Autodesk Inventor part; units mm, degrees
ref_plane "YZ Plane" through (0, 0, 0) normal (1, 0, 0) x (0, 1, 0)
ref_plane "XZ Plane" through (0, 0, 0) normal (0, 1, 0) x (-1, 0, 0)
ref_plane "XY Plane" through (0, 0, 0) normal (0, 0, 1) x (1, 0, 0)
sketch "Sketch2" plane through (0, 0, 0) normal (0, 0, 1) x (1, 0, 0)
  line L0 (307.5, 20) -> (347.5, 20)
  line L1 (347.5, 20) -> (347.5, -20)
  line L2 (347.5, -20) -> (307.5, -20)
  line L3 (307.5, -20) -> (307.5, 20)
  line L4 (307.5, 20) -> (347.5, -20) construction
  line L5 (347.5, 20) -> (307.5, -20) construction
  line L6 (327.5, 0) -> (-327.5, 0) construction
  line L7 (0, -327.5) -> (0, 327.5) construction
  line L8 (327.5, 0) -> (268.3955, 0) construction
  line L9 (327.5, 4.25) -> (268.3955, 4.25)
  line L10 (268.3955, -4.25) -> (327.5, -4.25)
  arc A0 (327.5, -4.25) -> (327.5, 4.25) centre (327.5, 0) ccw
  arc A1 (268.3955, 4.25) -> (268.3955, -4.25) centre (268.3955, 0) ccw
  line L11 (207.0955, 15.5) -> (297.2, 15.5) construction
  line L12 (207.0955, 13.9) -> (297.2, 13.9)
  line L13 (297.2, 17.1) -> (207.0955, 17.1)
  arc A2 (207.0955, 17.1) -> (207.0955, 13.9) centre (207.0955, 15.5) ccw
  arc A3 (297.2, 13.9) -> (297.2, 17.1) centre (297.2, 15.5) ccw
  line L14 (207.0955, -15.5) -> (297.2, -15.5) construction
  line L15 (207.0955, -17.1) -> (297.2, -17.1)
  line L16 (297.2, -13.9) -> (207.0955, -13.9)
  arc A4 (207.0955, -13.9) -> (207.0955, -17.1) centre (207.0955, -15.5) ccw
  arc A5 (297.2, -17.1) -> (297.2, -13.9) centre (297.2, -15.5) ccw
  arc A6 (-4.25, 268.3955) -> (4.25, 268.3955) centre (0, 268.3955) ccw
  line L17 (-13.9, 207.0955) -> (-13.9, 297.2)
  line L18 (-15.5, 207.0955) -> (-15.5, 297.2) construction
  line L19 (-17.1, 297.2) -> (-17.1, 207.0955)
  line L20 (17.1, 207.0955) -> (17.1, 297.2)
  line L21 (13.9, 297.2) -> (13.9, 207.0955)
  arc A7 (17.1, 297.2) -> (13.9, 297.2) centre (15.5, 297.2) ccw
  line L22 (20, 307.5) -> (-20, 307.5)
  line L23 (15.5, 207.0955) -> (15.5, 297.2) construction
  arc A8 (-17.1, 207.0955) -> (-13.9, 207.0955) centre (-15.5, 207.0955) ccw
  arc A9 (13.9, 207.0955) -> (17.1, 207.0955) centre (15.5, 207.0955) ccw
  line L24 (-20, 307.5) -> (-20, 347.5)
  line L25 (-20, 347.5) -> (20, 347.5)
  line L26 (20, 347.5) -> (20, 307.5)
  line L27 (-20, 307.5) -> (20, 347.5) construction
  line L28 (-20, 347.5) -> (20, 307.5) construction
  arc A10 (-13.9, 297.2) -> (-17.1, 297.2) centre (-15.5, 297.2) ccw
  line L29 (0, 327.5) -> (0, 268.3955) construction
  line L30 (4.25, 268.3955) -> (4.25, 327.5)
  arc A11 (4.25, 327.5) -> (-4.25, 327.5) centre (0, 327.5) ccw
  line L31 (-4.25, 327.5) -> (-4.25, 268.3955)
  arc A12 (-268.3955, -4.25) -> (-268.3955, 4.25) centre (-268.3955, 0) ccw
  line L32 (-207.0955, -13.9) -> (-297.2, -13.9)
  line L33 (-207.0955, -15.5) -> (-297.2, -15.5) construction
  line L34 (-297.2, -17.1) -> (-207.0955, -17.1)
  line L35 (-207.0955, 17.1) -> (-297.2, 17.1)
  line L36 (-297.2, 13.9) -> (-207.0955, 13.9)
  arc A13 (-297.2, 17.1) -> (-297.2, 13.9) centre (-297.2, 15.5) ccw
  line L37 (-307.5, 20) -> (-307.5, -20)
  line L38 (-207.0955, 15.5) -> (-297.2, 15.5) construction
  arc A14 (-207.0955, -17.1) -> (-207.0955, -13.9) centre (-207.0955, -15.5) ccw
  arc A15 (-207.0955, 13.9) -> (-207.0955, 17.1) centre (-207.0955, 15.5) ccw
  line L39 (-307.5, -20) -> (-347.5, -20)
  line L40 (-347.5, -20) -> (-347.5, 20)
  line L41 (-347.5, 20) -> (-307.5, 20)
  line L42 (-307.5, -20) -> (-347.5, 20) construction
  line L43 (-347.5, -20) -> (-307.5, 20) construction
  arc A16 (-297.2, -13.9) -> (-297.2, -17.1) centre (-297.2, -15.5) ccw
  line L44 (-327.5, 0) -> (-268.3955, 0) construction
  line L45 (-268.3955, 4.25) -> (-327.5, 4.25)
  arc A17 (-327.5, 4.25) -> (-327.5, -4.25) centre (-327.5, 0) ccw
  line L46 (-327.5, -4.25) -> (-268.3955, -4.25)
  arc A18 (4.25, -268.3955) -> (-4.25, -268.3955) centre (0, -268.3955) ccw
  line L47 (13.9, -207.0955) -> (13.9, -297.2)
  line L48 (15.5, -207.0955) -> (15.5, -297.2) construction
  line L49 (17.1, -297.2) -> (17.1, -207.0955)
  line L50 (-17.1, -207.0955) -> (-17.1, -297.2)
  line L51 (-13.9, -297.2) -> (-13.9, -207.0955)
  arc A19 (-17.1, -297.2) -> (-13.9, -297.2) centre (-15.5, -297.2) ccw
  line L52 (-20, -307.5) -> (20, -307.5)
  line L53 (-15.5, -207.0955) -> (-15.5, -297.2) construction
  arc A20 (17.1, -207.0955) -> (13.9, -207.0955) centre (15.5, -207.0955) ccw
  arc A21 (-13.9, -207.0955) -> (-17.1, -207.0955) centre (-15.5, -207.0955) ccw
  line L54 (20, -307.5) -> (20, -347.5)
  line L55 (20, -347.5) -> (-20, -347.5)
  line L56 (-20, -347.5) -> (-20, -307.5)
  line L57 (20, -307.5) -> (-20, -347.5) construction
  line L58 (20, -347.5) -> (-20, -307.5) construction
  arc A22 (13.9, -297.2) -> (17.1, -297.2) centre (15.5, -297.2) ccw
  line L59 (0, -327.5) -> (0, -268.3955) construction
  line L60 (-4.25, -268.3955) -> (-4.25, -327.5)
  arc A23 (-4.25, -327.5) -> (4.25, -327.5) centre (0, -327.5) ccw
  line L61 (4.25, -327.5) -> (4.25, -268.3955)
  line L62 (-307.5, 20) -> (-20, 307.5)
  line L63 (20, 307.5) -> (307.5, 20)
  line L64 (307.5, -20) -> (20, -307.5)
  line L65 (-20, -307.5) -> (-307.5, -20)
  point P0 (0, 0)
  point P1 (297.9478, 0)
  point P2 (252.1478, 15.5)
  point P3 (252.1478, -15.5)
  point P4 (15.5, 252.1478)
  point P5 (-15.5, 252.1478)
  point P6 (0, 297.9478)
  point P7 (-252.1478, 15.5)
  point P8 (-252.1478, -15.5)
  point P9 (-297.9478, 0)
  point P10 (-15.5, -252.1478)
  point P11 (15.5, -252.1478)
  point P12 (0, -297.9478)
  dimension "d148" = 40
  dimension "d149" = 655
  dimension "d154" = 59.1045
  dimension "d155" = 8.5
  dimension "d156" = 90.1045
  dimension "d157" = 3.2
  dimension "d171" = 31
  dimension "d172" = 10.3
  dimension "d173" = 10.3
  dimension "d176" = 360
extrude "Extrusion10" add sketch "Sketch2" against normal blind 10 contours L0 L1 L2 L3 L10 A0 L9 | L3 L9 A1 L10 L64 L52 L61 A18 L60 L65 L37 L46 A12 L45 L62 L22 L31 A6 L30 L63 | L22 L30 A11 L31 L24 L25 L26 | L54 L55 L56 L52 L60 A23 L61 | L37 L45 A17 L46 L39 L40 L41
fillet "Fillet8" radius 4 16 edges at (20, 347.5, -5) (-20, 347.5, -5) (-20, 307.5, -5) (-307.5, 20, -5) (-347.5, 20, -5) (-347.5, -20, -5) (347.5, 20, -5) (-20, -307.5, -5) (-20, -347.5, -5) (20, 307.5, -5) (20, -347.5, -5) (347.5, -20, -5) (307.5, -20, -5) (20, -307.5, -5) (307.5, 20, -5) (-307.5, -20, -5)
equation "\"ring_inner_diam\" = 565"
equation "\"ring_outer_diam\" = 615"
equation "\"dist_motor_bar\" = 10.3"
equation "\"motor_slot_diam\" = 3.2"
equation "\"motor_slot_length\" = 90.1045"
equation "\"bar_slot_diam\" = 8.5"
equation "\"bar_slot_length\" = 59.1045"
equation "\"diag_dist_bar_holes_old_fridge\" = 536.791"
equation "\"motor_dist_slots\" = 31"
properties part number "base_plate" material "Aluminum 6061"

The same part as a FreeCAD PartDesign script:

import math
import FreeCAD as App
import Part
import Sketcher


def edges_at(feature, points):
    """Names of the edges that pass closest to the given points."""
    edges = feature.Shape.Edges
    near = lambda p: min(range(len(edges)), key=lambda i: edges[i].distToShape(Part.Vertex(*p))[0])
    return sorted({f"Edge{near(p) + 1}" for p in points})

doc = App.newDocument("Part")
body = doc.addObject("PartDesign::Body", "Body")

# Sketch on XY plane
sketch1 = doc.addObject("Sketcher::SketchObject", "Sketch")
body.addObject(sketch1)
sketch1.AttachmentSupport = (doc.XY_Plane, [""])
sketch1.MapMode = "FlatFace"
sketch1.addGeometry(Part.LineSegment(App.Vector(347.5, 20, 0), App.Vector(307.5, 20, 0)), False)
sketch1.addGeometry(Part.LineSegment(App.Vector(307.5, 20, 0), App.Vector(20, 307.5, 0)), False)
sketch1.addGeometry(Part.LineSegment(App.Vector(20, 307.5, 0), App.Vector(20, 347.5, 0)), False)
sketch1.addGeometry(Part.LineSegment(App.Vector(20, 347.5, 0), App.Vector(-20, 347.5, 0)), False)
sketch1.addGeometry(Part.LineSegment(App.Vector(-20, 347.5, 0), App.Vector(-20, 307.5, 0)), False)
sketch1.addGeometry(Part.LineSegment(App.Vector(-20, 307.5, 0), App.Vector(-307.5, 20, 0)), False)
sketch1.addGeometry(Part.LineSegment(App.Vector(-307.5, 20, 0), App.Vector(-347.5, 20, 0)), False)
sketch1.addGeometry(Part.LineSegment(App.Vector(-347.5, 20, 0), App.Vector(-347.5, -20, 0)), False)
sketch1.addGeometry(Part.LineSegment(App.Vector(-347.5, -20, 0), App.Vector(-307.5, -20, 0)), False)
sketch1.addGeometry(Part.LineSegment(App.Vector(-307.5, -20, 0), App.Vector(-20, -307.5, 0)), False)
sketch1.addGeometry(Part.LineSegment(App.Vector(-20, -307.5, 0), App.Vector(-20, -347.5, 0)), False)
sketch1.addGeometry(Part.LineSegment(App.Vector(-20, -347.5, 0), App.Vector(20, -347.5, 0)), False)
sketch1.addGeometry(Part.LineSegment(App.Vector(20, -347.5, 0), App.Vector(20, -307.5, 0)), False)
sketch1.addGeometry(Part.LineSegment(App.Vector(20, -307.5, 0), App.Vector(307.5, -20, 0)), False)
sketch1.addGeometry(Part.LineSegment(App.Vector(307.5, -20, 0), App.Vector(347.5, -20, 0)), False)
sketch1.addGeometry(Part.LineSegment(App.Vector(347.5, -20, 0), App.Vector(347.5, 20, 0)), False)
sketch1.addGeometry(Part.LineSegment(App.Vector(327.5, -4.2, 0), App.Vector(268.4, -4.2, 0)), False)
sketch1.addGeometry(Part.ArcOfCircle(Part.Circle(App.Vector(268.4, 0, 0), App.Vector(0, 0, 1), 4.2), math.radians(90), math.radians(270)), False)
sketch1.addGeometry(Part.LineSegment(App.Vector(268.4, 4.2, 0), App.Vector(327.5, 4.2, 0)), False)
sketch1.addGeometry(Part.ArcOfCircle(Part.Circle(App.Vector(327.5, 0, 0), App.Vector(0, 0, 1), 4.2), math.radians(-90), math.radians(90)), False)
sketch1.addGeometry(Part.LineSegment(App.Vector(13.9, 207.1, 0), App.Vector(13.9, 297.2, 0)), False)
sketch1.addGeometry(Part.ArcOfCircle(Part.Circle(App.Vector(15.5, 297.2, 0), App.Vector(0, 0, 1), 1.6), math.radians(0), math.radians(180)), False)
sketch1.addGeometry(Part.LineSegment(App.Vector(17.1, 297.2, 0), App.Vector(17.1, 207.1, 0)), False)
sketch1.addGeometry(Part.ArcOfCircle(Part.Circle(App.Vector(15.5, 207.1, 0), App.Vector(0, 0, 1), 1.6), math.radians(180), math.radians(360)), False)
sketch1.addGeometry(Part.LineSegment(App.Vector(4.2, -268.4, 0), App.Vector(4.2, -327.5, 0)), False)
sketch1.addGeometry(Part.ArcOfCircle(Part.Circle(App.Vector(0, -327.5, 0), App.Vector(0, 0, 1), 4.2), math.radians(180), math.radians(360)), False)
sketch1.addGeometry(Part.LineSegment(App.Vector(-4.2, -327.5, 0), App.Vector(-4.2, -268.4, 0)), False)
sketch1.addGeometry(Part.ArcOfCircle(Part.Circle(App.Vector(0, -268.4, 0), App.Vector(0, 0, 1), 4.2), math.radians(0), math.radians(180)), False)
sketch1.addGeometry(Part.LineSegment(App.Vector(-268.4, -4.2, 0), App.Vector(-327.5, -4.2, 0)), False)
sketch1.addGeometry(Part.ArcOfCircle(Part.Circle(App.Vector(-327.5, 0, 0), App.Vector(0, 0, 1), 4.2), math.radians(90), math.radians(270)), False)
sketch1.addGeometry(Part.LineSegment(App.Vector(-327.5, 4.2, 0), App.Vector(-268.4, 4.2, 0)), False)
sketch1.addGeometry(Part.ArcOfCircle(Part.Circle(App.Vector(-268.4, 0, 0), App.Vector(0, 0, 1), 4.2), math.radians(-90), math.radians(90)), False)
sketch1.addGeometry(Part.LineSegment(App.Vector(-4.2, 268.4, 0), App.Vector(-4.2, 327.5, 0)), False)
sketch1.addGeometry(Part.ArcOfCircle(Part.Circle(App.Vector(0, 327.5, 0), App.Vector(0, 0, 1), 4.2), math.radians(0), math.radians(180)), False)
sketch1.addGeometry(Part.LineSegment(App.Vector(4.2, 327.5, 0), App.Vector(4.2, 268.4, 0)), False)
sketch1.addGeometry(Part.ArcOfCircle(Part.Circle(App.Vector(0, 268.4, 0), App.Vector(0, 0, 1), 4.2), math.radians(180), math.radians(360)), False)
sketch1.addGeometry(Part.LineSegment(App.Vector(-17.1, -297.2, 0), App.Vector(-17.1, -207.1, 0)), False)
sketch1.addGeometry(Part.ArcOfCircle(Part.Circle(App.Vector(-15.5, -207.1, 0), App.Vector(0, 0, 1), 1.6), math.radians(0), math.radians(180)), False)
sketch1.addGeometry(Part.LineSegment(App.Vector(-13.9, -207.1, 0), App.Vector(-13.9, -297.2, 0)), False)
sketch1.addGeometry(Part.ArcOfCircle(Part.Circle(App.Vector(-15.5, -297.2, 0), App.Vector(0, 0, 1), 1.6), math.radians(180), math.radians(360)), False)
sketch1.addGeometry(Part.LineSegment(App.Vector(-297.2, -13.9, 0), App.Vector(-207.1, -13.9, 0)), False)
sketch1.addGeometry(Part.ArcOfCircle(Part.Circle(App.Vector(-207.1, -15.5, 0), App.Vector(0, 0, 1), 1.6), math.radians(-90), math.radians(90)), False)
sketch1.addGeometry(Part.LineSegment(App.Vector(-207.1, -17.1, 0), App.Vector(-297.2, -17.1, 0)), False)
sketch1.addGeometry(Part.ArcOfCircle(Part.Circle(App.Vector(-297.2, -15.5, 0), App.Vector(0, 0, 1), 1.6), math.radians(90), math.radians(270)), False)
sketch1.addGeometry(Part.LineSegment(App.Vector(13.9, -297.2, 0), App.Vector(13.9, -207.1, 0)), False)
sketch1.addGeometry(Part.ArcOfCircle(Part.Circle(App.Vector(15.5, -207.1, 0), App.Vector(0, 0, 1), 1.6), math.radians(0), math.radians(180)), False)
sketch1.addGeometry(Part.LineSegment(App.Vector(17.1, -207.1, 0), App.Vector(17.1, -297.2, 0)), False)
sketch1.addGeometry(Part.ArcOfCircle(Part.Circle(App.Vector(15.5, -297.2, 0), App.Vector(0, 0, 1), 1.6), math.radians(180), math.radians(360)), False)
sketch1.addGeometry(Part.LineSegment(App.Vector(297.2, -17.1, 0), App.Vector(207.1, -17.1, 0)), False)
sketch1.addGeometry(Part.ArcOfCircle(Part.Circle(App.Vector(207.1, -15.5, 0), App.Vector(0, 0, 1), 1.6), math.radians(90), math.radians(270)), False)
sketch1.addGeometry(Part.LineSegment(App.Vector(207.1, -13.9, 0), App.Vector(297.2, -13.9, 0)), False)
sketch1.addGeometry(Part.ArcOfCircle(Part.Circle(App.Vector(297.2, -15.5, 0), App.Vector(0, 0, 1), 1.6), math.radians(-90), math.radians(90)), False)
sketch1.addGeometry(Part.LineSegment(App.Vector(-297.2, 17.1, 0), App.Vector(-207.1, 17.1, 0)), False)
sketch1.addGeometry(Part.ArcOfCircle(Part.Circle(App.Vector(-207.1, 15.5, 0), App.Vector(0, 0, 1), 1.6), math.radians(-90), math.radians(90)), False)
sketch1.addGeometry(Part.LineSegment(App.Vector(-207.1, 13.9, 0), App.Vector(-297.2, 13.9, 0)), False)
sketch1.addGeometry(Part.ArcOfCircle(Part.Circle(App.Vector(-297.2, 15.5, 0), App.Vector(0, 0, 1), 1.6), math.radians(90), math.radians(270)), False)
sketch1.addGeometry(Part.LineSegment(App.Vector(-13.9, 297.2, 0), App.Vector(-13.9, 207.1, 0)), False)
sketch1.addGeometry(Part.ArcOfCircle(Part.Circle(App.Vector(-15.5, 207.1, 0), App.Vector(0, 0, 1), 1.6), math.radians(180), math.radians(360)), False)
sketch1.addGeometry(Part.LineSegment(App.Vector(-17.1, 207.1, 0), App.Vector(-17.1, 297.2, 0)), False)
sketch1.addGeometry(Part.ArcOfCircle(Part.Circle(App.Vector(-15.5, 297.2, 0), App.Vector(0, 0, 1), 1.6), math.radians(0), math.radians(180)), False)
sketch1.addGeometry(Part.LineSegment(App.Vector(297.2, 13.9, 0), App.Vector(207.1, 13.9, 0)), False)
sketch1.addGeometry(Part.ArcOfCircle(Part.Circle(App.Vector(207.1, 15.5, 0), App.Vector(0, 0, 1), 1.6), math.radians(90), math.radians(270)), False)
sketch1.addGeometry(Part.LineSegment(App.Vector(207.1, 17.1, 0), App.Vector(297.2, 17.1, 0)), False)
sketch1.addGeometry(Part.ArcOfCircle(Part.Circle(App.Vector(297.2, 15.5, 0), App.Vector(0, 0, 1), 1.6), math.radians(-90), math.radians(90)), False)
sketch1.addConstraint(Sketcher.Constraint("Coincident", 0, 2, 1, 1))
sketch1.addConstraint(Sketcher.Constraint("Coincident", 1, 2, 2, 1))
sketch1.addConstraint(Sketcher.Constraint("Coincident", 2, 2, 3, 1))
sketch1.addConstraint(Sketcher.Constraint("Coincident", 3, 2, 4, 1))
sketch1.addConstraint(Sketcher.Constraint("Coincident", 4, 2, 5, 1))
sketch1.addConstraint(Sketcher.Constraint("Coincident", 5, 2, 6, 1))
sketch1.addConstraint(Sketcher.Constraint("Coincident", 6, 2, 7, 1))
sketch1.addConstraint(Sketcher.Constraint("Coincident", 7, 2, 8, 1))
sketch1.addConstraint(Sketcher.Constraint("Coincident", 8, 2, 9, 1))
sketch1.addConstraint(Sketcher.Constraint("Coincident", 9, 2, 10, 1))
sketch1.addConstraint(Sketcher.Constraint("Coincident", 10, 2, 11, 1))
sketch1.addConstraint(Sketcher.Constraint("Coincident", 11, 2, 12, 1))
sketch1.addConstraint(Sketcher.Constraint("Coincident", 12, 2, 13, 1))
sketch1.addConstraint(Sketcher.Constraint("Coincident", 13, 2, 14, 1))
sketch1.addConstraint(Sketcher.Constraint("Coincident", 14, 2, 15, 1))
sketch1.addConstraint(Sketcher.Constraint("Coincident", 15, 2, 0, 1))
sketch1.addConstraint(Sketcher.Constraint("Tangent", 16, 2, 17, 2))
sketch1.addConstraint(Sketcher.Constraint("Tangent", 17, 1, 18, 1))
sketch1.addConstraint(Sketcher.Constraint("Tangent", 18, 2, 19, 2))
sketch1.addConstraint(Sketcher.Constraint("Tangent", 19, 1, 16, 1))
sketch1.addConstraint(Sketcher.Constraint("Tangent", 20, 2, 21, 2))
sketch1.addConstraint(Sketcher.Constraint("Tangent", 21, 1, 22, 1))
sketch1.addConstraint(Sketcher.Constraint("Tangent", 22, 2, 23, 2))
sketch1.addConstraint(Sketcher.Constraint("Tangent", 23, 1, 20, 1))
sketch1.addConstraint(Sketcher.Constraint("Tangent", 24, 2, 25, 2))
sketch1.addConstraint(Sketcher.Constraint("Tangent", 25, 1, 26, 1))
sketch1.addConstraint(Sketcher.Constraint("Tangent", 26, 2, 27, 2))
sketch1.addConstraint(Sketcher.Constraint("Tangent", 27, 1, 24, 1))
sketch1.addConstraint(Sketcher.Constraint("Tangent", 28, 2, 29, 2))
sketch1.addConstraint(Sketcher.Constraint("Tangent", 29, 1, 30, 1))
sketch1.addConstraint(Sketcher.Constraint("Tangent", 30, 2, 31, 2))
sketch1.addConstraint(Sketcher.Constraint("Tangent", 31, 1, 28, 1))
sketch1.addConstraint(Sketcher.Constraint("Tangent", 32, 2, 33, 2))
sketch1.addConstraint(Sketcher.Constraint("Tangent", 33, 1, 34, 1))
sketch1.addConstraint(Sketcher.Constraint("Tangent", 34, 2, 35, 2))
sketch1.addConstraint(Sketcher.Constraint("Tangent", 35, 1, 32, 1))
sketch1.addConstraint(Sketcher.Constraint("Tangent", 36, 2, 37, 2))
sketch1.addConstraint(Sketcher.Constraint("Tangent", 37, 1, 38, 1))
sketch1.addConstraint(Sketcher.Constraint("Tangent", 38, 2, 39, 2))
sketch1.addConstraint(Sketcher.Constraint("Tangent", 39, 1, 36, 1))
sketch1.addConstraint(Sketcher.Constraint("Tangent", 40, 2, 41, 2))
sketch1.addConstraint(Sketcher.Constraint("Tangent", 41, 1, 42, 1))
sketch1.addConstraint(Sketcher.Constraint("Tangent", 42, 2, 43, 2))
sketch1.addConstraint(Sketcher.Constraint("Tangent", 43, 1, 40, 1))
sketch1.addConstraint(Sketcher.Constraint("Tangent", 44, 2, 45, 2))
sketch1.addConstraint(Sketcher.Constraint("Tangent", 45, 1, 46, 1))
sketch1.addConstraint(Sketcher.Constraint("Tangent", 46, 2, 47, 2))
sketch1.addConstraint(Sketcher.Constraint("Tangent", 47, 1, 44, 1))
sketch1.addConstraint(Sketcher.Constraint("Tangent", 48, 2, 49, 2))
sketch1.addConstraint(Sketcher.Constraint("Tangent", 49, 1, 50, 1))
sketch1.addConstraint(Sketcher.Constraint("Tangent", 50, 2, 51, 2))
sketch1.addConstraint(Sketcher.Constraint("Tangent", 51, 1, 48, 1))
sketch1.addConstraint(Sketcher.Constraint("Tangent", 52, 2, 53, 2))
sketch1.addConstraint(Sketcher.Constraint("Tangent", 53, 1, 54, 1))
sketch1.addConstraint(Sketcher.Constraint("Tangent", 54, 2, 55, 2))
sketch1.addConstraint(Sketcher.Constraint("Tangent", 55, 1, 52, 1))
sketch1.addConstraint(Sketcher.Constraint("Tangent", 56, 2, 57, 2))
sketch1.addConstraint(Sketcher.Constraint("Tangent", 57, 1, 58, 1))
sketch1.addConstraint(Sketcher.Constraint("Tangent", 58, 2, 59, 2))
sketch1.addConstraint(Sketcher.Constraint("Tangent", 59, 1, 56, 1))
sketch1.addConstraint(Sketcher.Constraint("Tangent", 60, 2, 61, 2))
sketch1.addConstraint(Sketcher.Constraint("Tangent", 61, 1, 62, 1))
sketch1.addConstraint(Sketcher.Constraint("Tangent", 62, 2, 63, 2))
sketch1.addConstraint(Sketcher.Constraint("Tangent", 63, 1, 60, 1))
sketch1.addConstraint(Sketcher.Constraint("Horizontal", 0))
sketch1.addConstraint(Sketcher.Constraint("Vertical", 2))
sketch1.addConstraint(Sketcher.Constraint("Horizontal", 3))
sketch1.addConstraint(Sketcher.Constraint("Vertical", 4))
sketch1.addConstraint(Sketcher.Constraint("Horizontal", 6))
sketch1.addConstraint(Sketcher.Constraint("Vertical", 7))
sketch1.addConstraint(Sketcher.Constraint("Horizontal", 8))
sketch1.addConstraint(Sketcher.Constraint("Vertical", 10))
sketch1.addConstraint(Sketcher.Constraint("Horizontal", 11))
sketch1.addConstraint(Sketcher.Constraint("Vertical", 12))
sketch1.addConstraint(Sketcher.Constraint("Horizontal", 14))
sketch1.addConstraint(Sketcher.Constraint("Vertical", 15))
sketch1.addConstraint(Sketcher.Constraint("Horizontal", 16))
sketch1.addConstraint(Sketcher.Constraint("Horizontal", 18))
sketch1.addConstraint(Sketcher.Constraint("Vertical", 20))
sketch1.addConstraint(Sketcher.Constraint("Vertical", 22))
sketch1.addConstraint(Sketcher.Constraint("Vertical", 24))
sketch1.addConstraint(Sketcher.Constraint("Vertical", 26))
sketch1.addConstraint(Sketcher.Constraint("Horizontal", 28))
sketch1.addConstraint(Sketcher.Constraint("Horizontal", 30))
sketch1.addConstraint(Sketcher.Constraint("Vertical", 32))
sketch1.addConstraint(Sketcher.Constraint("Vertical", 34))
sketch1.addConstraint(Sketcher.Constraint("Vertical", 36))
sketch1.addConstraint(Sketcher.Constraint("Vertical", 38))
sketch1.addConstraint(Sketcher.Constraint("Horizontal", 40))
sketch1.addConstraint(Sketcher.Constraint("Horizontal", 42))
sketch1.addConstraint(Sketcher.Constraint("Vertical", 44))
sketch1.addConstraint(Sketcher.Constraint("Vertical", 46))
sketch1.addConstraint(Sketcher.Constraint("Horizontal", 48))
sketch1.addConstraint(Sketcher.Constraint("Horizontal", 50))
sketch1.addConstraint(Sketcher.Constraint("Horizontal", 52))
sketch1.addConstraint(Sketcher.Constraint("Horizontal", 54))
sketch1.addConstraint(Sketcher.Constraint("Vertical", 56))
sketch1.addConstraint(Sketcher.Constraint("Vertical", 58))
sketch1.addConstraint(Sketcher.Constraint("Horizontal", 60))
sketch1.addConstraint(Sketcher.Constraint("Horizontal", 62))
sketch1.addConstraint(Sketcher.Constraint("Equal", 19, 25))
sketch1.addConstraint(Sketcher.Constraint("Equal", 27, 29))
sketch1.addConstraint(Sketcher.Constraint("Equal", 31, 33))
sketch1.addConstraint(Sketcher.Constraint("Equal", 23, 37))
sketch1.addConstraint(Sketcher.Constraint("Equal", 39, 41))
sketch1.addConstraint(Sketcher.Constraint("Equal", 43, 45))
sketch1.addConstraint(Sketcher.Constraint("Equal", 47, 49))
sketch1.addConstraint(Sketcher.Constraint("Equal", 51, 53))
sketch1.addConstraint(Sketcher.Constraint("Equal", 55, 57))
sketch1.addConstraint(Sketcher.Constraint("Equal", 59, 61))
sketch1.addConstraint(Sketcher.Constraint("Symmetric", 19, 3, 29, 3, -1, 1))
sketch1.addConstraint(Sketcher.Constraint("Symmetric", 25, 3, 33, 3, -1, 1))
sketch1.addConstraint(Sketcher.Constraint("Symmetric", 23, 3, 37, 3, -1, 1))
sketch1.addConstraint(Sketcher.Constraint("Symmetric", 49, 3, 53, 3, -1, 1))
sketch1.addConstraint(Sketcher.Constraint("Symmetric", 45, 3, 57, 3, -1, 1))
sketch1.addConstraint(Sketcher.Constraint("Symmetric", 41, 3, 61, 3, -1, 1))
sketch1.addConstraint(Sketcher.Constraint("Symmetric", 0, 2, 8, 2, -1, 1))
sketch1.addConstraint(Sketcher.Constraint("Symmetric", 1, 2, 9, 2, -1, 1))
sketch1.addConstraint(Sketcher.Constraint("Symmetric", 3, 2, 11, 2, -1, 1))
sketch1.addConstraint(Sketcher.Constraint("Symmetric", 5, 2, 13, 2, -1, 1))
sketch1.addConstraint(Sketcher.Constraint("Symmetric", 17, 3, 31, 3, -2))
sketch1.addConstraint(Sketcher.Constraint("Symmetric", 37, 3, 45, 3, -2))
sketch1.addConstraint(Sketcher.Constraint("Symmetric", 41, 3, 49, 3, -2))
sketch1.addConstraint(Sketcher.Constraint("Symmetric", 1, 2, 4, 2, -2))
sketch1.addConstraint(Sketcher.Constraint("Symmetric", 0, 2, 5, 2, -2))
sketch1.addConstraint(Sketcher.Constraint("Symmetric", 27, 3, 35, 3, -1))
sketch1.addConstraint(Sketcher.Constraint("Perpendicular", 1, 5))
sketch1.addConstraint(Sketcher.Constraint("Perpendicular", 9, 13))
sketch1.addConstraint(Sketcher.Constraint("Horizontal", 39, 3, 47, 3))
sketch1.addConstraint(Sketcher.Constraint("Horizontal", 21, 3, 59, 3))
sketch1.addConstraint(Sketcher.Constraint("Vertical", 43, 3, 55, 3))
sketch1.addConstraint(Sketcher.Constraint("Vertical", 51, 3, 63, 3))
sketch1.addConstraint(Sketcher.Constraint("Equal", 0, 3))
sketch1.addConstraint(Sketcher.Constraint("Equal", 3, 6))
sketch1.addConstraint(Sketcher.Constraint("Equal", 42, 48))
sketch1.addConstraint(Sketcher.Constraint("Equal", 14, 2))
sketch1.addConstraint(Sketcher.Constraint("Equal", 4, 7))
sketch1.addConstraint(Sketcher.Constraint("Equal", 62, 20))
sketch1.addConstraint(Sketcher.Constraint("Equal", 30, 24))
sketch1.addConstraint(Sketcher.Constraint("Equal", 22, 36))
sketch1.addConstraint(Sketcher.Constraint("Radius", 21, 1.6))
sketch1.addConstraint(Sketcher.Constraint("DistanceX", 0, 2, 0, 1, 40.0))
sketch1.addConstraint(Sketcher.Constraint("Radius", 17, 4.25))
sketch1.addConstraint(Sketcher.Constraint("DistanceX", 16, 2, 16, 1, 59.1045))
sketch1.addConstraint(Sketcher.Constraint("DistanceX", 40, 1, 40, 2, 90.1045))
sketch1.addConstraint(Sketcher.Constraint("DistanceX", -1, 1, 19, 3, 327.5))
sketch1.addConstraint(Sketcher.Constraint("DistanceX", -1, 1, 21, 3, 15.5))
sketch1.addConstraint(Sketcher.Constraint("DistanceY", -1, 1, 21, 3, 297.2))
sketch1.addConstraint(Sketcher.Constraint("DistanceY", 25, 3, -1, 1, 327.5))
sketch1.addConstraint(Sketcher.Constraint("DistanceY", 41, 3, -1, 1, 15.5))
sketch1.addConstraint(Sketcher.Constraint("DistanceX", 43, 3, -1, 1, 297.2))
sketch1.addConstraint(Sketcher.Constraint("DistanceX", -1, 1, 0, 2, 307.5))
pad1 = doc.addObject("PartDesign::Pad", "Pad")
body.addObject(pad1)
pad1.Profile = sketch1
pad1.Length = 10
pad1.Reversed = True
doc.recompute()

fillet = doc.addObject("PartDesign::Fillet", "Fillet")
body.addObject(fillet)
fillet.Base = (pad1, edges_at(pad1, [
    (20, 347.5, -5),
    (-20, 347.5, -5),
    (-20, 307.5, -5),
    (-307.5, 20, -5),
    (-347.5, 20, -5),
    (-347.5, -20, -5),
    (347.5, 20, -5),
    (-20, -307.5, -5),
    (-20, -347.5, -5),
    (20, 307.5, -5),
    (20, -347.5, -5),
    (347.5, -20, -5),
    (307.5, -20, -5),
    (20, -307.5, -5),
    (307.5, 20, -5),
    (-307.5, -20, -5),
]))
fillet.Radius = 4

doc.recompute()
